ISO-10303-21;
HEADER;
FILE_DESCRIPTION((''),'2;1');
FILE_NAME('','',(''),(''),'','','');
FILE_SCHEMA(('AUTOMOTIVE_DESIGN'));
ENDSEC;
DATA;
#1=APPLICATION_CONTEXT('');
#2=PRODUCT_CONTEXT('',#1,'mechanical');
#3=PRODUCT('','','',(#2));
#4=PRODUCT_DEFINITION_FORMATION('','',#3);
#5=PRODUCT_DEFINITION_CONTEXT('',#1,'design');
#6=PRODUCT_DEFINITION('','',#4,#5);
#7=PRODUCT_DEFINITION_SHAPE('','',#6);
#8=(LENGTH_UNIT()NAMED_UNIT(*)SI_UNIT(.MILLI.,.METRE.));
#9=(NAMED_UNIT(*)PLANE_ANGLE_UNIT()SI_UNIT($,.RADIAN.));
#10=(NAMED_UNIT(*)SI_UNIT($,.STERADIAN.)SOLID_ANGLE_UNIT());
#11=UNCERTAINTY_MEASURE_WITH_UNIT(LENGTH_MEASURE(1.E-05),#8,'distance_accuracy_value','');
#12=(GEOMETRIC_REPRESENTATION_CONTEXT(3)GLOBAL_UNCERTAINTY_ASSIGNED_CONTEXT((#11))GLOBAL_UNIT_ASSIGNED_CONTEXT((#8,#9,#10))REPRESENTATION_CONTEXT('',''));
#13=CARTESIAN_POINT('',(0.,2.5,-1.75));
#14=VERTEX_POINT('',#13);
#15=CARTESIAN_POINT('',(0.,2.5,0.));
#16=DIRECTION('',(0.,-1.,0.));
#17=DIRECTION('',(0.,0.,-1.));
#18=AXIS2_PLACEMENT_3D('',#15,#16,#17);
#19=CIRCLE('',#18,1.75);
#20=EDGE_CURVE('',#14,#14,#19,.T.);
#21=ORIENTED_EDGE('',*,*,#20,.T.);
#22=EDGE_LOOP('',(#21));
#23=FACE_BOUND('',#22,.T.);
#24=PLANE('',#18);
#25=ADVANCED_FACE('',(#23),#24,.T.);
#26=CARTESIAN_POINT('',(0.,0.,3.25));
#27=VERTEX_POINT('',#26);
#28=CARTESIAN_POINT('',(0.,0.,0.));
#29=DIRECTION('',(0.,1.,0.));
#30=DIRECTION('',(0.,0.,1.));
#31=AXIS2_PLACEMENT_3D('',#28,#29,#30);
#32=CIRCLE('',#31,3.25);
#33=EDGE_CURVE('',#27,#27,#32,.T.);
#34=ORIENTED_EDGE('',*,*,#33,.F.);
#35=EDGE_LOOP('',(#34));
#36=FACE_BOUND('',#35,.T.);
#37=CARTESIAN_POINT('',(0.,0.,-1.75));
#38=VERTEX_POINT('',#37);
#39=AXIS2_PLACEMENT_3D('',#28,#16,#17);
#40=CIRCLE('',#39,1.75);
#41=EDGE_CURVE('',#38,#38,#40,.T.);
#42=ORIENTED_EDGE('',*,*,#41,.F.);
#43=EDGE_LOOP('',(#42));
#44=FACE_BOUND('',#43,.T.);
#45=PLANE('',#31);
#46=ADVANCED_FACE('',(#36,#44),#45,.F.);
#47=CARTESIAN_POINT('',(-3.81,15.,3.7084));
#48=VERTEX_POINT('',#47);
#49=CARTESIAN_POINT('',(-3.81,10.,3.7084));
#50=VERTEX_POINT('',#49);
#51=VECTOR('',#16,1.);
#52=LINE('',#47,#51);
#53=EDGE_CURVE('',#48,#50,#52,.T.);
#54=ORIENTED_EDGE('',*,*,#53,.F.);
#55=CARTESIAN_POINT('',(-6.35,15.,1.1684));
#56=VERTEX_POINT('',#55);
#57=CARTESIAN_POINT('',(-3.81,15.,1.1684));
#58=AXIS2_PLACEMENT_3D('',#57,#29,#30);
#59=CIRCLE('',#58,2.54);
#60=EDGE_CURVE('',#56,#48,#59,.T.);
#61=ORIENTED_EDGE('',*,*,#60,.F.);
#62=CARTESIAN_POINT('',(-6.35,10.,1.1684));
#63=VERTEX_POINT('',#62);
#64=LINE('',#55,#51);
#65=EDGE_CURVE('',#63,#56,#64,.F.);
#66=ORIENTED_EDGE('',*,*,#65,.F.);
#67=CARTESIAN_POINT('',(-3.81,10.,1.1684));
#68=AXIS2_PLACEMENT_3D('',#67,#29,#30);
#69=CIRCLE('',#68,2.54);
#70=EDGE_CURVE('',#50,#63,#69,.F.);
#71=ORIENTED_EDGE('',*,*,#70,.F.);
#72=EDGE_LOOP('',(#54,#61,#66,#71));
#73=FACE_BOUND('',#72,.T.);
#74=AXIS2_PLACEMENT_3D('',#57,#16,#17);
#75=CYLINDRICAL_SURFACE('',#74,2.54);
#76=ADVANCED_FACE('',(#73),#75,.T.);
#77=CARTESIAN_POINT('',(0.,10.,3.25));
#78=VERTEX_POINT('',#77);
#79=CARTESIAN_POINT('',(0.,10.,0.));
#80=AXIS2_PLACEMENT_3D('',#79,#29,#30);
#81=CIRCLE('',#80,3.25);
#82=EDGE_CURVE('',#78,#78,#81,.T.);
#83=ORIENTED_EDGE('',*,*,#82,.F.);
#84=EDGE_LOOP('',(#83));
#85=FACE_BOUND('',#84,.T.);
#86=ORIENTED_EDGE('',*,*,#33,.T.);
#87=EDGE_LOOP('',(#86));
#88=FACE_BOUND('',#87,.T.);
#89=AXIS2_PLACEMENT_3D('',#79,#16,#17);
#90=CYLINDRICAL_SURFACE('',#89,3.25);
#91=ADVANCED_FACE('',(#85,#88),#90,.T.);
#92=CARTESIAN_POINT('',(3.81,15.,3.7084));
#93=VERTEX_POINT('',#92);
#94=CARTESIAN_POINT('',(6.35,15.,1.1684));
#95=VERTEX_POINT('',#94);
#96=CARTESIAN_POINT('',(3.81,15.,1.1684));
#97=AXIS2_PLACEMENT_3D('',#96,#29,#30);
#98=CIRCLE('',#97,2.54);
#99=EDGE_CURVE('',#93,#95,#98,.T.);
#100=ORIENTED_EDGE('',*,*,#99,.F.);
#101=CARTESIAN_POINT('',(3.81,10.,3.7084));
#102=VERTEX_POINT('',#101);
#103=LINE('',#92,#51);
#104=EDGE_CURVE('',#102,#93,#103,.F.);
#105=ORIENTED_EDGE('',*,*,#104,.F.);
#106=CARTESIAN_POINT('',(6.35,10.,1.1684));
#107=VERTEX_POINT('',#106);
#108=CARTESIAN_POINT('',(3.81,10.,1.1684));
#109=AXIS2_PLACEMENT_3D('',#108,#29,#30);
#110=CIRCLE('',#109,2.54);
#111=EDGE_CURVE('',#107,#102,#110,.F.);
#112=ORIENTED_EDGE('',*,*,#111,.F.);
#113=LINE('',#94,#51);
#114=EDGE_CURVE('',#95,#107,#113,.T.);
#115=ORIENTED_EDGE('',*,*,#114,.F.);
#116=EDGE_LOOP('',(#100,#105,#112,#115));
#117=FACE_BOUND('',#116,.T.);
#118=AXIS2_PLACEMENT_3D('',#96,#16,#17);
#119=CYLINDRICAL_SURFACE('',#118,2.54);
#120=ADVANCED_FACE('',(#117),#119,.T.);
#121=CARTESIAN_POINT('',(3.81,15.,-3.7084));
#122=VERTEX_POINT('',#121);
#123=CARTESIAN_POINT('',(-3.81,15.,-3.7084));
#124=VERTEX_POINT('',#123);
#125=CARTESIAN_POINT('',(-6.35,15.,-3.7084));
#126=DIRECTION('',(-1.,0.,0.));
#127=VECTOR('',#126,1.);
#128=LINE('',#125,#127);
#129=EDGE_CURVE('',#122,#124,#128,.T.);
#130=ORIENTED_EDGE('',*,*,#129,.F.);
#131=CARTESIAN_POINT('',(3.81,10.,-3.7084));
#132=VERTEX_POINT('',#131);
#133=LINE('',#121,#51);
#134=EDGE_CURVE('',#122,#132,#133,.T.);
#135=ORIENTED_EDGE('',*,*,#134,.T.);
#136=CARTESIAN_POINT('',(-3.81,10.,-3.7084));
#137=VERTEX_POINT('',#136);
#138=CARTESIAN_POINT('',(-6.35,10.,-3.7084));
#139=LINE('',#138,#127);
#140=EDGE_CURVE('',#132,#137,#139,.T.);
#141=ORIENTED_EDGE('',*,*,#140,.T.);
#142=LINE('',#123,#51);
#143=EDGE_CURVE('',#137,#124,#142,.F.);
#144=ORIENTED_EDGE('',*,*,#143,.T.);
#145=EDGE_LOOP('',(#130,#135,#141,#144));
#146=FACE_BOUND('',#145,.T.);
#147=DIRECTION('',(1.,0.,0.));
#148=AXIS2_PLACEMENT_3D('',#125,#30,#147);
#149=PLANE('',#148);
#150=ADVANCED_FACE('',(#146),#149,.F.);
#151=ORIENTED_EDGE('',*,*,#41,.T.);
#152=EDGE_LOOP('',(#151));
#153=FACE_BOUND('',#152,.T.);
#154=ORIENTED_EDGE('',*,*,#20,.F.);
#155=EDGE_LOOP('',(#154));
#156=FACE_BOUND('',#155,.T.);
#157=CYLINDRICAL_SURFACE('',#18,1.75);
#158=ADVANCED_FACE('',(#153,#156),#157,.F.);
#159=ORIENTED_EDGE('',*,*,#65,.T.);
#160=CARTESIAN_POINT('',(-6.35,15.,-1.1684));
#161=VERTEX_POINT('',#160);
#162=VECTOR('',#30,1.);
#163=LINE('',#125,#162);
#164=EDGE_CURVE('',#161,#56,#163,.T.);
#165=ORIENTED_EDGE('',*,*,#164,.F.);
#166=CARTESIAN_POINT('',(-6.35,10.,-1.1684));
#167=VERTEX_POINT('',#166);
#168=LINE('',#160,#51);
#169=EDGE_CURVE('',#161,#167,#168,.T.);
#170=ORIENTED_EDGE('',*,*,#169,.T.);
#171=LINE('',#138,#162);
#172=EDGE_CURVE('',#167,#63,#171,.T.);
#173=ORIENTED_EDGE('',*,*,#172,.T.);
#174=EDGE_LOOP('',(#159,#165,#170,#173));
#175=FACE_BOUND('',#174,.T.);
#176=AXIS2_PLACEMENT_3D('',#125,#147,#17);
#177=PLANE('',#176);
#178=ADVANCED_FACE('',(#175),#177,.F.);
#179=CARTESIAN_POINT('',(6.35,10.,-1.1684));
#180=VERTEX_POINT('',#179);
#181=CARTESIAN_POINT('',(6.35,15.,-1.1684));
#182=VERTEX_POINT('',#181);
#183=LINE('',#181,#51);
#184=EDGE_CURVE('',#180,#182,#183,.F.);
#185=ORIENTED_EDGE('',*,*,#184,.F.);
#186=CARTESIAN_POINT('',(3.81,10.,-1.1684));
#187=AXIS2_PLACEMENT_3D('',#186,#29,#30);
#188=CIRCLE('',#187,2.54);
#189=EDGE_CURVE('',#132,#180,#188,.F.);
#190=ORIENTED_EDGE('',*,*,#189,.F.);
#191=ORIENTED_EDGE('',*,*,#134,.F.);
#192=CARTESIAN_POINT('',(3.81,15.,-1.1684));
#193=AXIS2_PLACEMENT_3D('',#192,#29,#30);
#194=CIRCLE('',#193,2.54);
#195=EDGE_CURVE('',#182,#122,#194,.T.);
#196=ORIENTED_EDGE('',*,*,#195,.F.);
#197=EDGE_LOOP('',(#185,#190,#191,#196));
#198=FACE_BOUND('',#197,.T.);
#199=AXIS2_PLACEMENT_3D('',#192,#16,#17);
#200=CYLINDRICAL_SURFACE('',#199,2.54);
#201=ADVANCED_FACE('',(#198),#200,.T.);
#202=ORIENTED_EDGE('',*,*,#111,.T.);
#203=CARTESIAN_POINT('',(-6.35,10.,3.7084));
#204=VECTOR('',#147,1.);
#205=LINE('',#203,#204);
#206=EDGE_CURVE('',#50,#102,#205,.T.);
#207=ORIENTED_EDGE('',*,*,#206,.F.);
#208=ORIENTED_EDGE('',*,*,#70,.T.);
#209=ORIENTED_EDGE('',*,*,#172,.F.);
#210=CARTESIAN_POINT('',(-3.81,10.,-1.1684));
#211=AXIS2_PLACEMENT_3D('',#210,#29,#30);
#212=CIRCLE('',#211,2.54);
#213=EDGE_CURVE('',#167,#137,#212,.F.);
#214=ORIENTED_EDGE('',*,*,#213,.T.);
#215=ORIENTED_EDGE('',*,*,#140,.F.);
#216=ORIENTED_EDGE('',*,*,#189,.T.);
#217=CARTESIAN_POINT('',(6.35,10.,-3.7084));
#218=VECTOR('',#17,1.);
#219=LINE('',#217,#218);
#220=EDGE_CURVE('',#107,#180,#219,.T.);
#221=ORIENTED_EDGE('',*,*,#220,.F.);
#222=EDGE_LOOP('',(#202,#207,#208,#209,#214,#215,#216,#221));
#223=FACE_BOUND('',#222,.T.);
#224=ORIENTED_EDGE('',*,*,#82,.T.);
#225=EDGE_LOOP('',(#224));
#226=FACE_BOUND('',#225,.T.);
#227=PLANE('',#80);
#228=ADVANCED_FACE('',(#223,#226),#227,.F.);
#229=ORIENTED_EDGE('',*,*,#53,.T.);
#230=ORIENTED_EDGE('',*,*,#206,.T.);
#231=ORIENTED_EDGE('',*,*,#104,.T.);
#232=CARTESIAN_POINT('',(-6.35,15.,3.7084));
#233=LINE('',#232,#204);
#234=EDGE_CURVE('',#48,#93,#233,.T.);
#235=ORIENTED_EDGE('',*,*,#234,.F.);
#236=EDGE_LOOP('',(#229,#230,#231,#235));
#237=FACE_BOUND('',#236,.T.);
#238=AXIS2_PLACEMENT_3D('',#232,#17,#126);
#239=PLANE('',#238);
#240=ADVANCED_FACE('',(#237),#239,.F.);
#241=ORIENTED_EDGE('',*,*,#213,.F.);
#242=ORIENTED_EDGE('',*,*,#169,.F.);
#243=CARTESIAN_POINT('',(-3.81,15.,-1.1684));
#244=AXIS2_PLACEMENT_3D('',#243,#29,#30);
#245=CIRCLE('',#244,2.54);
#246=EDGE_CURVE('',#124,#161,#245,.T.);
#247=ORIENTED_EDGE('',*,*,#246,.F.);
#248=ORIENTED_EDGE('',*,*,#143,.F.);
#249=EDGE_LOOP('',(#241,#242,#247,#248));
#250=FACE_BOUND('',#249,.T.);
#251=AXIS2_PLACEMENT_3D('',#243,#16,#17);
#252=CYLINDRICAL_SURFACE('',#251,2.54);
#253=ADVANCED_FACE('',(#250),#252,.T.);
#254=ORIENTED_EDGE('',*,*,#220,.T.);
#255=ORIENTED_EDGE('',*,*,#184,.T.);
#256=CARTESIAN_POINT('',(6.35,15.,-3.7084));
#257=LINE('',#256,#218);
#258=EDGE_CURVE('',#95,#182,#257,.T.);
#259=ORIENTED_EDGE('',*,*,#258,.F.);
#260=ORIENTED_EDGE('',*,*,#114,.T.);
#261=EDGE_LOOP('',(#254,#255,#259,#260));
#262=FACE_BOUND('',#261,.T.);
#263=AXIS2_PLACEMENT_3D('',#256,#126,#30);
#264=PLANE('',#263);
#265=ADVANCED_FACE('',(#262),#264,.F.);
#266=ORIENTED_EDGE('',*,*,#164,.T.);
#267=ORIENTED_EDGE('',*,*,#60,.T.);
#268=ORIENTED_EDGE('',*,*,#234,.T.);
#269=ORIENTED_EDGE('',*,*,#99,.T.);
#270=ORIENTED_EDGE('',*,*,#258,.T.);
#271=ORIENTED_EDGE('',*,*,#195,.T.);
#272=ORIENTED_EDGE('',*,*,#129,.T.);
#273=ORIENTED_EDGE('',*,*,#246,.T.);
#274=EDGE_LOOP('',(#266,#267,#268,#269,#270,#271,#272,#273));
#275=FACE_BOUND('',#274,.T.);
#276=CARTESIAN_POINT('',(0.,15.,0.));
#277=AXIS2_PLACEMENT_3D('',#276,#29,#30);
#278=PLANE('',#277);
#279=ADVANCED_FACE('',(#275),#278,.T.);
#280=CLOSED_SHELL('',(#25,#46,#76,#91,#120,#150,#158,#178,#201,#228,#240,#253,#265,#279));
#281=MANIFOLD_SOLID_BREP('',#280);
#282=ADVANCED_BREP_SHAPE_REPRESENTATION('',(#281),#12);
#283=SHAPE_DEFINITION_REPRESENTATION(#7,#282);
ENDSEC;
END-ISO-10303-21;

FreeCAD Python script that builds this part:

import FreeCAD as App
import Part
import Sketcher
from FreeCAD import Vector
Q = App.Units.Quantity


def edges_at(feature, points):
    """Names of the edges that pass closest to the given points."""
    edges = feature.Shape.Edges
    near = lambda p: min(range(len(edges)), key=lambda i: edges[i].distToShape(Part.Vertex(*p))[0])
    return sorted({f"Edge{near(p) + 1}" for p in points})


def add_polygon(sketch, points):
    """Adds a closed chain of lines whose ends are joined by coincident constraints."""
    first, n = sketch.GeometryCount, len(points)
    for a, b in zip(points, points[1:] + points[:1]):
        sketch.addGeometry(Part.LineSegment(App.Vector(*a, 0), App.Vector(*b, 0)), False)
    for i in range(n):
        sketch.addConstraint(Sketcher.Constraint("Coincident", first + i, 2, first + (i + 1) % n, 1))

doc = App.newDocument("Part")
body = doc.addObject("PartDesign::Body", "Body")

# Sketch on XZ plane
sketch1 = doc.addObject("Sketcher::SketchObject", "Sketch")
body.addObject(sketch1)
sketch1.AttachmentSupport = (doc.XZ_Plane, [""])
sketch1.MapMode = "FlatFace"
sketch1.addGeometry(Part.Circle(Vector(0, 0, 0), Vector(0, 0, 1), 3.2), False)
sketch1.addConstraint([
    Sketcher.Constraint("Coincident", 0, 3, -1, 1),
    Sketcher.Constraint("Diameter", 0, Q("6.5 mm")),
])
pad1 = doc.addObject("PartDesign::Pad", "Pad")
body.addObject(pad1)
pad1.Profile = sketch1
pad1.Length = 10
pad1.Reversed = True

# Sketch on XZ plane
sketch2 = doc.addObject("Sketcher::SketchObject", "Sketch001")
body.addObject(sketch2)
sketch2.AttachmentSupport = (doc.XZ_Plane, [""])
sketch2.MapMode = "FlatFace"
sketch2.addGeometry(Part.Circle(Vector(0, 0, 0), Vector(0, 0, 1), 1.8), False)
sketch2.addConstraint([
    Sketcher.Constraint("Coincident", 0, 3, -1, 1),
    Sketcher.Constraint("Diameter", 0, Q("3.5 mm")),
])
pocket1 = doc.addObject("PartDesign::Pocket", "Pocket")
body.addObject(pocket1)
pocket1.Profile = sketch2
pocket1.Length = 2.5

# Sketch on XZ plane
sketch3 = doc.addObject("Sketcher::SketchObject", "Sketch002")
body.addObject(sketch3)
sketch3.AttachmentSupport = (doc.XZ_Plane, [""])
sketch3.MapMode = "FlatFace"
sketch3.AttachmentOffset = App.Placement(Vector(0, 0, -10), App.Rotation())
add_polygon(sketch3, [(-6, -4), (-6, 4), (6, 4), (6, -4)])  # lines 0-3
sketch3.addConstraint([
    Sketcher.Constraint("Vertical", 0),
    Sketcher.Constraint("Horizontal", 1),
    Sketcher.Constraint("Vertical", 2),
    Sketcher.Constraint("Horizontal", 3),
    Sketcher.Constraint("Symmetric", 0, 2, 2, 2, -1, 1),
    Sketcher.Constraint("DistanceX", 1, 1, 1, 2, Q("12.7 mm")),
    Sketcher.Constraint("DistanceY", 0, 1, 0, 2, Q("7.4168 mm")),
])
pad2 = doc.addObject("PartDesign::Pad", "Pad001")
body.addObject(pad2)
pad2.Profile = sketch3
pad2.Length = 5
pad2.Reversed = True
doc.recompute()

fillet = doc.addObject("PartDesign::Fillet", "Fillet")
body.addObject(fillet)
fillet.Base = (pad2, edges_at(pad2, [
    (6.35, 12.5, 3.708),
    (6.35, 12.5, -3.708),
    (-6.35, 12.5, -3.708),
    (-6.35, 12.5, 3.708),
]))
fillet.Radius = 2.54

doc.recompute()
